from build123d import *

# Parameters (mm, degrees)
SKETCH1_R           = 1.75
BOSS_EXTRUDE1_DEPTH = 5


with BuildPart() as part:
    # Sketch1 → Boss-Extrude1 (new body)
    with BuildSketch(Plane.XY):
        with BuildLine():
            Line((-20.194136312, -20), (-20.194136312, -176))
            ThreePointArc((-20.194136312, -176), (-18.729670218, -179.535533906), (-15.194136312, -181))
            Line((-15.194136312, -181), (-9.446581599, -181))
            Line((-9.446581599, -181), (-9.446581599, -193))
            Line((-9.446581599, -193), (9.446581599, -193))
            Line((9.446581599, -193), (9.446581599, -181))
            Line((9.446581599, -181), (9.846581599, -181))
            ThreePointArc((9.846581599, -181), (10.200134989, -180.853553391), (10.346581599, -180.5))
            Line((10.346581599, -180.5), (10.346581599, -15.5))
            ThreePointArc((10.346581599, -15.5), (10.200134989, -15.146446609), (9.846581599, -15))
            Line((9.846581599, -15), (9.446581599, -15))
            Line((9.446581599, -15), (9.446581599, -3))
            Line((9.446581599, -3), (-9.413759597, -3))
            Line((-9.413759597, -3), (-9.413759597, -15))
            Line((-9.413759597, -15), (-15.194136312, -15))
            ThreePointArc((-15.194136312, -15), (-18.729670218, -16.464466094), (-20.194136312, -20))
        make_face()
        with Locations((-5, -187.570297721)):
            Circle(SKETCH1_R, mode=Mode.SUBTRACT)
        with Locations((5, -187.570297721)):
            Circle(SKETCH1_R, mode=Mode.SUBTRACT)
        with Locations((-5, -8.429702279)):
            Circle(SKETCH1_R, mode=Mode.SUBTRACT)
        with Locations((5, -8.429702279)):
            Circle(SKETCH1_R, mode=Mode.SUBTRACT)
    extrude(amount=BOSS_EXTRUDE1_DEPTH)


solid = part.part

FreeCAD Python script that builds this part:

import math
import FreeCAD as App
import Part
import Sketcher
from FreeCAD import Vector
Q = App.Units.Quantity

doc = App.newDocument("Part")
body = doc.addObject("PartDesign::Body", "Body")

# Sketch on XY plane
sketch1 = body.newObject("Sketcher::SketchObject", "Sketch")
sketch1.AttachmentSupport = (doc.getObject("XY_Plane"), [""])
sketch1.MapMode = "FlatFace"
sketch1.addGeometry(Part.LineSegment(Vector(-20.19, -20, 0), Vector(-20.19, -176, 0)), False)
sketch1.addGeometry(Part.ArcOfCircle(Part.Circle(Vector(-15.19, -176, 0), Vector(0, 0, 1), 5), math.radians(180), math.radians(270)), False)
sketch1.addGeometry(Part.LineSegment(Vector(-15.19, -181, 0), Vector(-9.45, -181, 0)), False)
sketch1.addGeometry(Part.LineSegment(Vector(-9.45, -181, 0), Vector(-9.45, -193, 0)), False)
sketch1.addGeometry(Part.LineSegment(Vector(-9.45, -193, 0), Vector(9.45, -193, 0)), False)
sketch1.addGeometry(Part.LineSegment(Vector(9.45, -193, 0), Vector(9.45, -181, 0)), False)
sketch1.addGeometry(Part.LineSegment(Vector(9.45, -181, 0), Vector(9.85, -181, 0)), False)
sketch1.addGeometry(Part.ArcOfCircle(Part.Circle(Vector(9.85, -180.5, 0), Vector(0, 0, 1), 0.5), math.radians(-90), math.radians(0)), False)
sketch1.addGeometry(Part.LineSegment(Vector(10.35, -180.5, 0), Vector(10.35, -15.5, 0)), False)
sketch1.addGeometry(Part.ArcOfCircle(Part.Circle(Vector(9.85, -15.5, 0), Vector(0, 0, 1), 0.5), math.radians(0), math.radians(90)), False)
sketch1.addGeometry(Part.LineSegment(Vector(9.85, -15, 0), Vector(9.45, -15, 0)), False)
sketch1.addGeometry(Part.LineSegment(Vector(9.45, -15, 0), Vector(9.45, -3, 0)), False)
sketch1.addGeometry(Part.LineSegment(Vector(9.45, -3, 0), Vector(-9.41, -3, 0)), False)
sketch1.addGeometry(Part.LineSegment(Vector(-9.41, -3, 0), Vector(-9.41, -15, 0)), False)
sketch1.addGeometry(Part.LineSegment(Vector(-9.41, -15, 0), Vector(-15.19, -15, 0)), False)
sketch1.addGeometry(Part.ArcOfCircle(Part.Circle(Vector(-15.19, -20, 0), Vector(0, 0, 1), 5), math.radians(90), math.radians(180)), False)
sketch1.addGeometry(Part.Circle(Vector(-5, -187.57, 0), Vector(0, 0, 1), 1.75), False)
sketch1.addGeometry(Part.Circle(Vector(5, -187.57, 0), Vector(0, 0, 1), 1.75), False)
sketch1.addGeometry(Part.Circle(Vector(-5, -8.43, 0), Vector(0, 0, 1), 1.75), False)
sketch1.addGeometry(Part.Circle(Vector(5, -8.43, 0), Vector(0, 0, 1), 1.75), False)
sketch1.addConstraint(Sketcher.Constraint("Tangent", 0, 2, 1, 1))
sketch1.addConstraint(Sketcher.Constraint("Tangent", 1, 2, 2, 1))
sketch1.addConstraint(Sketcher.Constraint("Coincident", 2, 2, 3, 1))
sketch1.addConstraint(Sketcher.Constraint("Coincident", 3, 2, 4, 1))
sketch1.addConstraint(Sketcher.Constraint("Coincident", 4, 2, 5, 1))
sketch1.addConstraint(Sketcher.Constraint("Coincident", 5, 2, 6, 1))
sketch1.addConstraint(Sketcher.Constraint("Tangent", 6, 2, 7, 1))
sketch1.addConstraint(Sketcher.Constraint("Tangent", 7, 2, 8, 1))
sketch1.addConstraint(Sketcher.Constraint("Tangent", 8, 2, 9, 1))
sketch1.addConstraint(Sketcher.Constraint("Tangent", 9, 2, 10, 1))
sketch1.addConstraint(Sketcher.Constraint("Coincident", 10, 2, 11, 1))
sketch1.addConstraint(Sketcher.Constraint("Coincident", 11, 2, 12, 1))
sketch1.addConstraint(Sketcher.Constraint("Coincident", 12, 2, 13, 1))
sketch1.addConstraint(Sketcher.Constraint("Coincident", 13, 2, 14, 1))
sketch1.addConstraint(Sketcher.Constraint("Tangent", 14, 2, 15, 1))
sketch1.addConstraint(Sketcher.Constraint("Tangent", 15, 2, 0, 1))
sketch1.addConstraint(Sketcher.Constraint("Vertical", 0))
sketch1.addConstraint(Sketcher.Constraint("Horizontal", 2))
sketch1.addConstraint(Sketcher.Constraint("Vertical", 3))
sketch1.addConstraint(Sketcher.Constraint("Horizontal", 4))
sketch1.addConstraint(Sketcher.Constraint("Vertical", 5))
sketch1.addConstraint(Sketcher.Constraint("Horizontal", 6))
sketch1.addConstraint(Sketcher.Constraint("Vertical", 8))
sketch1.addConstraint(Sketcher.Constraint("Horizontal", 10))
sketch1.addConstraint(Sketcher.Constraint("Vertical", 11))
sketch1.addConstraint(Sketcher.Constraint("Horizontal", 12))
sketch1.addConstraint(Sketcher.Constraint("Vertical", 13))
sketch1.addConstraint(Sketcher.Constraint("Horizontal", 14))
sketch1.addConstraint(Sketcher.Constraint("Equal", 7, 9))
sketch1.addConstraint(Sketcher.Constraint("Equal", 1, 15))
sketch1.addConstraint(Sketcher.Constraint("Equal", 16, 17))
sketch1.addConstraint(Sketcher.Constraint("Equal", 17, 18))
sketch1.addConstraint(Sketcher.Constraint("Equal", 18, 19))
sketch1.addConstraint(Sketcher.Constraint("Symmetric", 16, 3, 17, 3, -2))
sketch1.addConstraint(Sketcher.Constraint("Symmetric", 18, 3, 19, 3, -2))
sketch1.addConstraint(Sketcher.Constraint("Symmetric", 2, 2, 5, 2, -2))
sketch1.addConstraint(Sketcher.Constraint("Horizontal", 10, 2, 13, 2))
sketch1.addConstraint(Sketcher.Constraint("Vertical", 16, 3, 18, 3))
sketch1.addConstraint(Sketcher.Constraint("Vertical", 5, 2, 10, 2))
sketch1.addConstraint(Sketcher.Constraint("Equal", 5, 11))
sketch1.addConstraint(Sketcher.Constraint("Radius", 1, Q("5 mm")))
sketch1.addConstraint(Sketcher.Constraint("Diameter", 16, Q("3.5 mm")))
sketch1.addConstraint(Sketcher.Constraint("Radius", 7, Q("0.5 mm")))
sketch1.addConstraint(Sketcher.Constraint("DistanceY", 0, 2, 0, 1, Q("156 mm")))
sketch1.addConstraint(Sketcher.Constraint("DistanceY", 3, 2, 3, 1, Q("12 mm")))
sketch1.addConstraint(Sketcher.Constraint("DistanceX", 6, 1, 6, 2, Q("0.4 mm")))
sketch1.addConstraint(Sketcher.Constraint("DistanceY", 1, 3, -1, 1, Q("176 mm")))
sketch1.addConstraint(Sketcher.Constraint("DistanceX", 16, 3, -1, 1, Q("5 mm")))
sketch1.addConstraint(Sketcher.Constraint("DistanceX", 12, 2, 12, 1, Q("18.860341 mm")))
sketch1.addConstraint(Sketcher.Constraint("DistanceX", 2, 1, 2, 2, Q("5.747555 mm")))
sketch1.addConstraint(Sketcher.Constraint("DistanceX", 4, 1, 4, 2, Q("18.893163 mm")))
sketch1.addConstraint(Sketcher.Constraint("DistanceY", 16, 3, -1, 1, Q("187.570298 mm")))
sketch1.addConstraint(Sketcher.Constraint("DistanceY", 18, 3, -1, 1, Q("8.429702 mm")))
pad1 = body.newObject("PartDesign::Pad", "Pad")
pad1.Profile = sketch1
pad1.Length = 5

doc.recompute()
